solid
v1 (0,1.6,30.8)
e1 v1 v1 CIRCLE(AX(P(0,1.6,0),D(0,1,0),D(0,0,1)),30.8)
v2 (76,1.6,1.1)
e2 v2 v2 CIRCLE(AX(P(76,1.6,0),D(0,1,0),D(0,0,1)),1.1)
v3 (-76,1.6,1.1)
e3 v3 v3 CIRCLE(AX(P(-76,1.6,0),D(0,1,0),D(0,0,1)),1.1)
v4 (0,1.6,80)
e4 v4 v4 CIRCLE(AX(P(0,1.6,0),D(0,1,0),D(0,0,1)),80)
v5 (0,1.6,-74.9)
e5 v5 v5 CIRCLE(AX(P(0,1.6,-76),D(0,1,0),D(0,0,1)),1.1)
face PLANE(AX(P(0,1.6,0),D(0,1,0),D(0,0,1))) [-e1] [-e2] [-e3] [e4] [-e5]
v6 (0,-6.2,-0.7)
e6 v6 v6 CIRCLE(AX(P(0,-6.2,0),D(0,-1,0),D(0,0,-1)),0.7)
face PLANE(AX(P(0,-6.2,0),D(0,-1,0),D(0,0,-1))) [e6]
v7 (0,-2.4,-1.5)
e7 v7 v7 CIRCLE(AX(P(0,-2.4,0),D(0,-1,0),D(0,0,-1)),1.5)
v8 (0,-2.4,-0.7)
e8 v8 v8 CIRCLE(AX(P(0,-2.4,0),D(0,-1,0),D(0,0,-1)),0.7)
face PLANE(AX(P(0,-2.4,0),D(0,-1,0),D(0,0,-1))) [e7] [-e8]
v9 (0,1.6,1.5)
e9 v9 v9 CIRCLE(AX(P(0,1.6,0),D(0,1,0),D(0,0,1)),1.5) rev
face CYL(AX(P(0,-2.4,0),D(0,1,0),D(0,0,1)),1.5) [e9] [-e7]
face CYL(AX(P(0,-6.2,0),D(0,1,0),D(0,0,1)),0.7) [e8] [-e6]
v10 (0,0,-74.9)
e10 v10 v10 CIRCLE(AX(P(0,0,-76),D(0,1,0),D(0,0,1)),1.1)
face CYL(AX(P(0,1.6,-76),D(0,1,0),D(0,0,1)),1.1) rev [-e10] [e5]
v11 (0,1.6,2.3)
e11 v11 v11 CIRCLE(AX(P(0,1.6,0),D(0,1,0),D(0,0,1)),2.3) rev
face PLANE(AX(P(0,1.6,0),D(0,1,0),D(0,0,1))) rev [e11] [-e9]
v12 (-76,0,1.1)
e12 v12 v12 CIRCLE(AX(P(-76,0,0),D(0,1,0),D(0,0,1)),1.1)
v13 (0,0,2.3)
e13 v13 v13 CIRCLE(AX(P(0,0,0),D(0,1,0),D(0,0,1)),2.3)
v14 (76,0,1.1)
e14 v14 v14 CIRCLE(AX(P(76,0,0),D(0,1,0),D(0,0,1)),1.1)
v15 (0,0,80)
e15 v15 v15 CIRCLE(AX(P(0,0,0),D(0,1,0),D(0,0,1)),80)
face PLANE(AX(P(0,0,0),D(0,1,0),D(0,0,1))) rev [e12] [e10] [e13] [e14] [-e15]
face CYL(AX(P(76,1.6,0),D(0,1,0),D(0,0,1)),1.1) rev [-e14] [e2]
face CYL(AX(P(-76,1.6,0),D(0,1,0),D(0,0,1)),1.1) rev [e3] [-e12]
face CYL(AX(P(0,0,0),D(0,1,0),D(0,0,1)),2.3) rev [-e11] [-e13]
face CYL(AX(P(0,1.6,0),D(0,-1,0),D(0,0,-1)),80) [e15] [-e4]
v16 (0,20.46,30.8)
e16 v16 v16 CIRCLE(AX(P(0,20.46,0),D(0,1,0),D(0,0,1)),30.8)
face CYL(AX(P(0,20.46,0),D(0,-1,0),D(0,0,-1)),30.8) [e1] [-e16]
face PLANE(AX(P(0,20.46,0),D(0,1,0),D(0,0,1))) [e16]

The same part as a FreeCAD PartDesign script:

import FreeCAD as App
import Part
import Sketcher

doc = App.newDocument("Part")
body = doc.addObject("PartDesign::Body", "Body")

sketch1 = doc.addObject("Sketcher::SketchObject", "Sketch")
body.addObject(sketch1)
sketch1.AttachmentSupport = (doc.XZ_Plane, [""])
sketch1.MapMode = "FlatFace"
sketch1.addGeometry(Part.Circle(App.Vector(0, 0, 0), App.Vector(0, 0, 1), 80), False)
sketch1.addConstraint(Sketcher.Constraint("Coincident", 0, 3, -1, 1))
sketch1.addConstraint(Sketcher.Constraint("Diameter", 0, 160.0))
pad1 = doc.addObject("PartDesign::Pad", "Pad")
body.addObject(pad1)
pad1.Profile = sketch1
pad1.Length = 1.6
pad1.Reversed = True

sketch2 = doc.addObject("Sketcher::SketchObject", "Sketch001")
body.addObject(sketch2)
sketch2.AttachmentSupport = (doc.XZ_Plane, [""])
sketch2.MapMode = "FlatFace"
sketch2.AttachmentOffset = App.Placement(App.Vector(0, 0, -1.6), App.Rotation())
sketch2.addGeometry(Part.Circle(App.Vector(0, 0, 0), App.Vector(0, 0, 1), 2.3), False)
sketch2.addConstraint(Sketcher.Constraint("Coincident", 0, 3, -1, 1))
sketch2.addConstraint(Sketcher.Constraint("Diameter", 0, 4.6))
pocket1 = doc.addObject("PartDesign::Pocket", "Pocket")
body.addObject(pocket1)
pocket1.Profile = sketch2
pocket1.Length = 1.6
pocket1.Reversed = True

sketch3 = doc.addObject("Sketcher::SketchObject", "Sketch002")
body.addObject(sketch3)
sketch3.AttachmentSupport = (doc.XZ_Plane, [""])
sketch3.MapMode = "FlatFace"
sketch3.AttachmentOffset = App.Placement(App.Vector(0, 0, -1.6), App.Rotation())
sketch3.addGeometry(Part.Circle(App.Vector(0, -76, 0), App.Vector(0, 0, 1), 1.1), False)
sketch3.addGeometry(Part.Circle(App.Vector(76, 0, 0), App.Vector(0, 0, 1), 1.1), False)
sketch3.addGeometry(Part.Circle(App.Vector(-76, 0, 0), App.Vector(0, 0, 1), 1.1), False)
sketch3.addConstraint(Sketcher.Constraint("Equal", 0, 1))
sketch3.addConstraint(Sketcher.Constraint("Equal", 1, 2))
sketch3.addConstraint(Sketcher.Constraint("Symmetric", 1, 3, 2, 3, -1, 1))
sketch3.addConstraint(Sketcher.Constraint("PointOnObject", 0, 3, -2))
sketch3.addConstraint(Sketcher.Constraint("PointOnObject", 1, 3, -1))
sketch3.addConstraint(Sketcher.Constraint("Diameter", 0, 2.2))
sketch3.addConstraint(Sketcher.Constraint("DistanceY", 0, 3, -1, 1, 76.0))
sketch3.addConstraint(Sketcher.Constraint("DistanceX", -1, 1, 1, 3, 76.0))
doc.recompute()
hole = doc.addObject("PartDesign::Hole", "Hole")
body.addObject(hole)
hole.Profile = sketch3
hole.ThreadType = "None"
hole.Diameter = 2.2
hole.DepthType = "Dimension"
hole.Depth = 6
hole.DrillPoint = "Angled"
hole.DrillPointAngle = 118
hole.Reversed = True

sketch4 = doc.addObject("Sketcher::SketchObject", "Sketch003")
body.addObject(sketch4)
sketch4.AttachmentSupport = (doc.XZ_Plane, [""])
sketch4.MapMode = "FlatFace"
sketch4.AttachmentOffset = App.Placement(App.Vector(0, 0, -1.6), App.Rotation())
sketch4.addGeometry(Part.Circle(App.Vector(0, 0, 0), App.Vector(0, 0, 1), 30.8), False)
sketch4.addConstraint(Sketcher.Constraint("Coincident", 0, 3, -1, 1))
sketch4.addConstraint(Sketcher.Constraint("Diameter", 0, 61.6))
pad2 = doc.addObject("PartDesign::Pad", "Pad001")
body.addObject(pad2)
pad2.Profile = sketch4
pad2.Length = 18.86
pad2.Reversed = True

sketch5 = doc.addObject("Sketcher::SketchObject", "Sketch004")
body.addObject(sketch5)
sketch5.AttachmentSupport = (doc.XZ_Plane, [""])
sketch5.MapMode = "FlatFace"
sketch5.AttachmentOffset = App.Placement(App.Vector(0, 0, -1.6), App.Rotation())
sketch5.addGeometry(Part.Circle(App.Vector(0, 0, 0), App.Vector(0, 0, 1), 1.5), False)
sketch5.addConstraint(Sketcher.Constraint("Coincident", 0, 3, -1, 1))
sketch5.addConstraint(Sketcher.Constraint("Diameter", 0, 3.0))
pad3 = doc.addObject("PartDesign::Pad", "Pad002")
body.addObject(pad3)
pad3.Profile = sketch5
pad3.Length = 4

sketch6 = doc.addObject("Sketcher::SketchObject", "Sketch005")
body.addObject(sketch6)
sketch6.AttachmentSupport = (doc.XZ_Plane, [""])
sketch6.MapMode = "FlatFace"
sketch6.AttachmentOffset = App.Placement(App.Vector(0, 0, 2.4), App.Rotation())
sketch6.addGeometry(Part.Circle(App.Vector(0, 0, 0), App.Vector(0, 0, 1), 0.7), False)
sketch6.addConstraint(Sketcher.Constraint("Coincident", 0, 3, -1, 1))
sketch6.addConstraint(Sketcher.Constraint("Diameter", 0, 1.4))
pad4 = doc.addObject("PartDesign::Pad", "Pad003")
body.addObject(pad4)
pad4.Profile = sketch6
pad4.Length = 3.8

doc.recompute()
